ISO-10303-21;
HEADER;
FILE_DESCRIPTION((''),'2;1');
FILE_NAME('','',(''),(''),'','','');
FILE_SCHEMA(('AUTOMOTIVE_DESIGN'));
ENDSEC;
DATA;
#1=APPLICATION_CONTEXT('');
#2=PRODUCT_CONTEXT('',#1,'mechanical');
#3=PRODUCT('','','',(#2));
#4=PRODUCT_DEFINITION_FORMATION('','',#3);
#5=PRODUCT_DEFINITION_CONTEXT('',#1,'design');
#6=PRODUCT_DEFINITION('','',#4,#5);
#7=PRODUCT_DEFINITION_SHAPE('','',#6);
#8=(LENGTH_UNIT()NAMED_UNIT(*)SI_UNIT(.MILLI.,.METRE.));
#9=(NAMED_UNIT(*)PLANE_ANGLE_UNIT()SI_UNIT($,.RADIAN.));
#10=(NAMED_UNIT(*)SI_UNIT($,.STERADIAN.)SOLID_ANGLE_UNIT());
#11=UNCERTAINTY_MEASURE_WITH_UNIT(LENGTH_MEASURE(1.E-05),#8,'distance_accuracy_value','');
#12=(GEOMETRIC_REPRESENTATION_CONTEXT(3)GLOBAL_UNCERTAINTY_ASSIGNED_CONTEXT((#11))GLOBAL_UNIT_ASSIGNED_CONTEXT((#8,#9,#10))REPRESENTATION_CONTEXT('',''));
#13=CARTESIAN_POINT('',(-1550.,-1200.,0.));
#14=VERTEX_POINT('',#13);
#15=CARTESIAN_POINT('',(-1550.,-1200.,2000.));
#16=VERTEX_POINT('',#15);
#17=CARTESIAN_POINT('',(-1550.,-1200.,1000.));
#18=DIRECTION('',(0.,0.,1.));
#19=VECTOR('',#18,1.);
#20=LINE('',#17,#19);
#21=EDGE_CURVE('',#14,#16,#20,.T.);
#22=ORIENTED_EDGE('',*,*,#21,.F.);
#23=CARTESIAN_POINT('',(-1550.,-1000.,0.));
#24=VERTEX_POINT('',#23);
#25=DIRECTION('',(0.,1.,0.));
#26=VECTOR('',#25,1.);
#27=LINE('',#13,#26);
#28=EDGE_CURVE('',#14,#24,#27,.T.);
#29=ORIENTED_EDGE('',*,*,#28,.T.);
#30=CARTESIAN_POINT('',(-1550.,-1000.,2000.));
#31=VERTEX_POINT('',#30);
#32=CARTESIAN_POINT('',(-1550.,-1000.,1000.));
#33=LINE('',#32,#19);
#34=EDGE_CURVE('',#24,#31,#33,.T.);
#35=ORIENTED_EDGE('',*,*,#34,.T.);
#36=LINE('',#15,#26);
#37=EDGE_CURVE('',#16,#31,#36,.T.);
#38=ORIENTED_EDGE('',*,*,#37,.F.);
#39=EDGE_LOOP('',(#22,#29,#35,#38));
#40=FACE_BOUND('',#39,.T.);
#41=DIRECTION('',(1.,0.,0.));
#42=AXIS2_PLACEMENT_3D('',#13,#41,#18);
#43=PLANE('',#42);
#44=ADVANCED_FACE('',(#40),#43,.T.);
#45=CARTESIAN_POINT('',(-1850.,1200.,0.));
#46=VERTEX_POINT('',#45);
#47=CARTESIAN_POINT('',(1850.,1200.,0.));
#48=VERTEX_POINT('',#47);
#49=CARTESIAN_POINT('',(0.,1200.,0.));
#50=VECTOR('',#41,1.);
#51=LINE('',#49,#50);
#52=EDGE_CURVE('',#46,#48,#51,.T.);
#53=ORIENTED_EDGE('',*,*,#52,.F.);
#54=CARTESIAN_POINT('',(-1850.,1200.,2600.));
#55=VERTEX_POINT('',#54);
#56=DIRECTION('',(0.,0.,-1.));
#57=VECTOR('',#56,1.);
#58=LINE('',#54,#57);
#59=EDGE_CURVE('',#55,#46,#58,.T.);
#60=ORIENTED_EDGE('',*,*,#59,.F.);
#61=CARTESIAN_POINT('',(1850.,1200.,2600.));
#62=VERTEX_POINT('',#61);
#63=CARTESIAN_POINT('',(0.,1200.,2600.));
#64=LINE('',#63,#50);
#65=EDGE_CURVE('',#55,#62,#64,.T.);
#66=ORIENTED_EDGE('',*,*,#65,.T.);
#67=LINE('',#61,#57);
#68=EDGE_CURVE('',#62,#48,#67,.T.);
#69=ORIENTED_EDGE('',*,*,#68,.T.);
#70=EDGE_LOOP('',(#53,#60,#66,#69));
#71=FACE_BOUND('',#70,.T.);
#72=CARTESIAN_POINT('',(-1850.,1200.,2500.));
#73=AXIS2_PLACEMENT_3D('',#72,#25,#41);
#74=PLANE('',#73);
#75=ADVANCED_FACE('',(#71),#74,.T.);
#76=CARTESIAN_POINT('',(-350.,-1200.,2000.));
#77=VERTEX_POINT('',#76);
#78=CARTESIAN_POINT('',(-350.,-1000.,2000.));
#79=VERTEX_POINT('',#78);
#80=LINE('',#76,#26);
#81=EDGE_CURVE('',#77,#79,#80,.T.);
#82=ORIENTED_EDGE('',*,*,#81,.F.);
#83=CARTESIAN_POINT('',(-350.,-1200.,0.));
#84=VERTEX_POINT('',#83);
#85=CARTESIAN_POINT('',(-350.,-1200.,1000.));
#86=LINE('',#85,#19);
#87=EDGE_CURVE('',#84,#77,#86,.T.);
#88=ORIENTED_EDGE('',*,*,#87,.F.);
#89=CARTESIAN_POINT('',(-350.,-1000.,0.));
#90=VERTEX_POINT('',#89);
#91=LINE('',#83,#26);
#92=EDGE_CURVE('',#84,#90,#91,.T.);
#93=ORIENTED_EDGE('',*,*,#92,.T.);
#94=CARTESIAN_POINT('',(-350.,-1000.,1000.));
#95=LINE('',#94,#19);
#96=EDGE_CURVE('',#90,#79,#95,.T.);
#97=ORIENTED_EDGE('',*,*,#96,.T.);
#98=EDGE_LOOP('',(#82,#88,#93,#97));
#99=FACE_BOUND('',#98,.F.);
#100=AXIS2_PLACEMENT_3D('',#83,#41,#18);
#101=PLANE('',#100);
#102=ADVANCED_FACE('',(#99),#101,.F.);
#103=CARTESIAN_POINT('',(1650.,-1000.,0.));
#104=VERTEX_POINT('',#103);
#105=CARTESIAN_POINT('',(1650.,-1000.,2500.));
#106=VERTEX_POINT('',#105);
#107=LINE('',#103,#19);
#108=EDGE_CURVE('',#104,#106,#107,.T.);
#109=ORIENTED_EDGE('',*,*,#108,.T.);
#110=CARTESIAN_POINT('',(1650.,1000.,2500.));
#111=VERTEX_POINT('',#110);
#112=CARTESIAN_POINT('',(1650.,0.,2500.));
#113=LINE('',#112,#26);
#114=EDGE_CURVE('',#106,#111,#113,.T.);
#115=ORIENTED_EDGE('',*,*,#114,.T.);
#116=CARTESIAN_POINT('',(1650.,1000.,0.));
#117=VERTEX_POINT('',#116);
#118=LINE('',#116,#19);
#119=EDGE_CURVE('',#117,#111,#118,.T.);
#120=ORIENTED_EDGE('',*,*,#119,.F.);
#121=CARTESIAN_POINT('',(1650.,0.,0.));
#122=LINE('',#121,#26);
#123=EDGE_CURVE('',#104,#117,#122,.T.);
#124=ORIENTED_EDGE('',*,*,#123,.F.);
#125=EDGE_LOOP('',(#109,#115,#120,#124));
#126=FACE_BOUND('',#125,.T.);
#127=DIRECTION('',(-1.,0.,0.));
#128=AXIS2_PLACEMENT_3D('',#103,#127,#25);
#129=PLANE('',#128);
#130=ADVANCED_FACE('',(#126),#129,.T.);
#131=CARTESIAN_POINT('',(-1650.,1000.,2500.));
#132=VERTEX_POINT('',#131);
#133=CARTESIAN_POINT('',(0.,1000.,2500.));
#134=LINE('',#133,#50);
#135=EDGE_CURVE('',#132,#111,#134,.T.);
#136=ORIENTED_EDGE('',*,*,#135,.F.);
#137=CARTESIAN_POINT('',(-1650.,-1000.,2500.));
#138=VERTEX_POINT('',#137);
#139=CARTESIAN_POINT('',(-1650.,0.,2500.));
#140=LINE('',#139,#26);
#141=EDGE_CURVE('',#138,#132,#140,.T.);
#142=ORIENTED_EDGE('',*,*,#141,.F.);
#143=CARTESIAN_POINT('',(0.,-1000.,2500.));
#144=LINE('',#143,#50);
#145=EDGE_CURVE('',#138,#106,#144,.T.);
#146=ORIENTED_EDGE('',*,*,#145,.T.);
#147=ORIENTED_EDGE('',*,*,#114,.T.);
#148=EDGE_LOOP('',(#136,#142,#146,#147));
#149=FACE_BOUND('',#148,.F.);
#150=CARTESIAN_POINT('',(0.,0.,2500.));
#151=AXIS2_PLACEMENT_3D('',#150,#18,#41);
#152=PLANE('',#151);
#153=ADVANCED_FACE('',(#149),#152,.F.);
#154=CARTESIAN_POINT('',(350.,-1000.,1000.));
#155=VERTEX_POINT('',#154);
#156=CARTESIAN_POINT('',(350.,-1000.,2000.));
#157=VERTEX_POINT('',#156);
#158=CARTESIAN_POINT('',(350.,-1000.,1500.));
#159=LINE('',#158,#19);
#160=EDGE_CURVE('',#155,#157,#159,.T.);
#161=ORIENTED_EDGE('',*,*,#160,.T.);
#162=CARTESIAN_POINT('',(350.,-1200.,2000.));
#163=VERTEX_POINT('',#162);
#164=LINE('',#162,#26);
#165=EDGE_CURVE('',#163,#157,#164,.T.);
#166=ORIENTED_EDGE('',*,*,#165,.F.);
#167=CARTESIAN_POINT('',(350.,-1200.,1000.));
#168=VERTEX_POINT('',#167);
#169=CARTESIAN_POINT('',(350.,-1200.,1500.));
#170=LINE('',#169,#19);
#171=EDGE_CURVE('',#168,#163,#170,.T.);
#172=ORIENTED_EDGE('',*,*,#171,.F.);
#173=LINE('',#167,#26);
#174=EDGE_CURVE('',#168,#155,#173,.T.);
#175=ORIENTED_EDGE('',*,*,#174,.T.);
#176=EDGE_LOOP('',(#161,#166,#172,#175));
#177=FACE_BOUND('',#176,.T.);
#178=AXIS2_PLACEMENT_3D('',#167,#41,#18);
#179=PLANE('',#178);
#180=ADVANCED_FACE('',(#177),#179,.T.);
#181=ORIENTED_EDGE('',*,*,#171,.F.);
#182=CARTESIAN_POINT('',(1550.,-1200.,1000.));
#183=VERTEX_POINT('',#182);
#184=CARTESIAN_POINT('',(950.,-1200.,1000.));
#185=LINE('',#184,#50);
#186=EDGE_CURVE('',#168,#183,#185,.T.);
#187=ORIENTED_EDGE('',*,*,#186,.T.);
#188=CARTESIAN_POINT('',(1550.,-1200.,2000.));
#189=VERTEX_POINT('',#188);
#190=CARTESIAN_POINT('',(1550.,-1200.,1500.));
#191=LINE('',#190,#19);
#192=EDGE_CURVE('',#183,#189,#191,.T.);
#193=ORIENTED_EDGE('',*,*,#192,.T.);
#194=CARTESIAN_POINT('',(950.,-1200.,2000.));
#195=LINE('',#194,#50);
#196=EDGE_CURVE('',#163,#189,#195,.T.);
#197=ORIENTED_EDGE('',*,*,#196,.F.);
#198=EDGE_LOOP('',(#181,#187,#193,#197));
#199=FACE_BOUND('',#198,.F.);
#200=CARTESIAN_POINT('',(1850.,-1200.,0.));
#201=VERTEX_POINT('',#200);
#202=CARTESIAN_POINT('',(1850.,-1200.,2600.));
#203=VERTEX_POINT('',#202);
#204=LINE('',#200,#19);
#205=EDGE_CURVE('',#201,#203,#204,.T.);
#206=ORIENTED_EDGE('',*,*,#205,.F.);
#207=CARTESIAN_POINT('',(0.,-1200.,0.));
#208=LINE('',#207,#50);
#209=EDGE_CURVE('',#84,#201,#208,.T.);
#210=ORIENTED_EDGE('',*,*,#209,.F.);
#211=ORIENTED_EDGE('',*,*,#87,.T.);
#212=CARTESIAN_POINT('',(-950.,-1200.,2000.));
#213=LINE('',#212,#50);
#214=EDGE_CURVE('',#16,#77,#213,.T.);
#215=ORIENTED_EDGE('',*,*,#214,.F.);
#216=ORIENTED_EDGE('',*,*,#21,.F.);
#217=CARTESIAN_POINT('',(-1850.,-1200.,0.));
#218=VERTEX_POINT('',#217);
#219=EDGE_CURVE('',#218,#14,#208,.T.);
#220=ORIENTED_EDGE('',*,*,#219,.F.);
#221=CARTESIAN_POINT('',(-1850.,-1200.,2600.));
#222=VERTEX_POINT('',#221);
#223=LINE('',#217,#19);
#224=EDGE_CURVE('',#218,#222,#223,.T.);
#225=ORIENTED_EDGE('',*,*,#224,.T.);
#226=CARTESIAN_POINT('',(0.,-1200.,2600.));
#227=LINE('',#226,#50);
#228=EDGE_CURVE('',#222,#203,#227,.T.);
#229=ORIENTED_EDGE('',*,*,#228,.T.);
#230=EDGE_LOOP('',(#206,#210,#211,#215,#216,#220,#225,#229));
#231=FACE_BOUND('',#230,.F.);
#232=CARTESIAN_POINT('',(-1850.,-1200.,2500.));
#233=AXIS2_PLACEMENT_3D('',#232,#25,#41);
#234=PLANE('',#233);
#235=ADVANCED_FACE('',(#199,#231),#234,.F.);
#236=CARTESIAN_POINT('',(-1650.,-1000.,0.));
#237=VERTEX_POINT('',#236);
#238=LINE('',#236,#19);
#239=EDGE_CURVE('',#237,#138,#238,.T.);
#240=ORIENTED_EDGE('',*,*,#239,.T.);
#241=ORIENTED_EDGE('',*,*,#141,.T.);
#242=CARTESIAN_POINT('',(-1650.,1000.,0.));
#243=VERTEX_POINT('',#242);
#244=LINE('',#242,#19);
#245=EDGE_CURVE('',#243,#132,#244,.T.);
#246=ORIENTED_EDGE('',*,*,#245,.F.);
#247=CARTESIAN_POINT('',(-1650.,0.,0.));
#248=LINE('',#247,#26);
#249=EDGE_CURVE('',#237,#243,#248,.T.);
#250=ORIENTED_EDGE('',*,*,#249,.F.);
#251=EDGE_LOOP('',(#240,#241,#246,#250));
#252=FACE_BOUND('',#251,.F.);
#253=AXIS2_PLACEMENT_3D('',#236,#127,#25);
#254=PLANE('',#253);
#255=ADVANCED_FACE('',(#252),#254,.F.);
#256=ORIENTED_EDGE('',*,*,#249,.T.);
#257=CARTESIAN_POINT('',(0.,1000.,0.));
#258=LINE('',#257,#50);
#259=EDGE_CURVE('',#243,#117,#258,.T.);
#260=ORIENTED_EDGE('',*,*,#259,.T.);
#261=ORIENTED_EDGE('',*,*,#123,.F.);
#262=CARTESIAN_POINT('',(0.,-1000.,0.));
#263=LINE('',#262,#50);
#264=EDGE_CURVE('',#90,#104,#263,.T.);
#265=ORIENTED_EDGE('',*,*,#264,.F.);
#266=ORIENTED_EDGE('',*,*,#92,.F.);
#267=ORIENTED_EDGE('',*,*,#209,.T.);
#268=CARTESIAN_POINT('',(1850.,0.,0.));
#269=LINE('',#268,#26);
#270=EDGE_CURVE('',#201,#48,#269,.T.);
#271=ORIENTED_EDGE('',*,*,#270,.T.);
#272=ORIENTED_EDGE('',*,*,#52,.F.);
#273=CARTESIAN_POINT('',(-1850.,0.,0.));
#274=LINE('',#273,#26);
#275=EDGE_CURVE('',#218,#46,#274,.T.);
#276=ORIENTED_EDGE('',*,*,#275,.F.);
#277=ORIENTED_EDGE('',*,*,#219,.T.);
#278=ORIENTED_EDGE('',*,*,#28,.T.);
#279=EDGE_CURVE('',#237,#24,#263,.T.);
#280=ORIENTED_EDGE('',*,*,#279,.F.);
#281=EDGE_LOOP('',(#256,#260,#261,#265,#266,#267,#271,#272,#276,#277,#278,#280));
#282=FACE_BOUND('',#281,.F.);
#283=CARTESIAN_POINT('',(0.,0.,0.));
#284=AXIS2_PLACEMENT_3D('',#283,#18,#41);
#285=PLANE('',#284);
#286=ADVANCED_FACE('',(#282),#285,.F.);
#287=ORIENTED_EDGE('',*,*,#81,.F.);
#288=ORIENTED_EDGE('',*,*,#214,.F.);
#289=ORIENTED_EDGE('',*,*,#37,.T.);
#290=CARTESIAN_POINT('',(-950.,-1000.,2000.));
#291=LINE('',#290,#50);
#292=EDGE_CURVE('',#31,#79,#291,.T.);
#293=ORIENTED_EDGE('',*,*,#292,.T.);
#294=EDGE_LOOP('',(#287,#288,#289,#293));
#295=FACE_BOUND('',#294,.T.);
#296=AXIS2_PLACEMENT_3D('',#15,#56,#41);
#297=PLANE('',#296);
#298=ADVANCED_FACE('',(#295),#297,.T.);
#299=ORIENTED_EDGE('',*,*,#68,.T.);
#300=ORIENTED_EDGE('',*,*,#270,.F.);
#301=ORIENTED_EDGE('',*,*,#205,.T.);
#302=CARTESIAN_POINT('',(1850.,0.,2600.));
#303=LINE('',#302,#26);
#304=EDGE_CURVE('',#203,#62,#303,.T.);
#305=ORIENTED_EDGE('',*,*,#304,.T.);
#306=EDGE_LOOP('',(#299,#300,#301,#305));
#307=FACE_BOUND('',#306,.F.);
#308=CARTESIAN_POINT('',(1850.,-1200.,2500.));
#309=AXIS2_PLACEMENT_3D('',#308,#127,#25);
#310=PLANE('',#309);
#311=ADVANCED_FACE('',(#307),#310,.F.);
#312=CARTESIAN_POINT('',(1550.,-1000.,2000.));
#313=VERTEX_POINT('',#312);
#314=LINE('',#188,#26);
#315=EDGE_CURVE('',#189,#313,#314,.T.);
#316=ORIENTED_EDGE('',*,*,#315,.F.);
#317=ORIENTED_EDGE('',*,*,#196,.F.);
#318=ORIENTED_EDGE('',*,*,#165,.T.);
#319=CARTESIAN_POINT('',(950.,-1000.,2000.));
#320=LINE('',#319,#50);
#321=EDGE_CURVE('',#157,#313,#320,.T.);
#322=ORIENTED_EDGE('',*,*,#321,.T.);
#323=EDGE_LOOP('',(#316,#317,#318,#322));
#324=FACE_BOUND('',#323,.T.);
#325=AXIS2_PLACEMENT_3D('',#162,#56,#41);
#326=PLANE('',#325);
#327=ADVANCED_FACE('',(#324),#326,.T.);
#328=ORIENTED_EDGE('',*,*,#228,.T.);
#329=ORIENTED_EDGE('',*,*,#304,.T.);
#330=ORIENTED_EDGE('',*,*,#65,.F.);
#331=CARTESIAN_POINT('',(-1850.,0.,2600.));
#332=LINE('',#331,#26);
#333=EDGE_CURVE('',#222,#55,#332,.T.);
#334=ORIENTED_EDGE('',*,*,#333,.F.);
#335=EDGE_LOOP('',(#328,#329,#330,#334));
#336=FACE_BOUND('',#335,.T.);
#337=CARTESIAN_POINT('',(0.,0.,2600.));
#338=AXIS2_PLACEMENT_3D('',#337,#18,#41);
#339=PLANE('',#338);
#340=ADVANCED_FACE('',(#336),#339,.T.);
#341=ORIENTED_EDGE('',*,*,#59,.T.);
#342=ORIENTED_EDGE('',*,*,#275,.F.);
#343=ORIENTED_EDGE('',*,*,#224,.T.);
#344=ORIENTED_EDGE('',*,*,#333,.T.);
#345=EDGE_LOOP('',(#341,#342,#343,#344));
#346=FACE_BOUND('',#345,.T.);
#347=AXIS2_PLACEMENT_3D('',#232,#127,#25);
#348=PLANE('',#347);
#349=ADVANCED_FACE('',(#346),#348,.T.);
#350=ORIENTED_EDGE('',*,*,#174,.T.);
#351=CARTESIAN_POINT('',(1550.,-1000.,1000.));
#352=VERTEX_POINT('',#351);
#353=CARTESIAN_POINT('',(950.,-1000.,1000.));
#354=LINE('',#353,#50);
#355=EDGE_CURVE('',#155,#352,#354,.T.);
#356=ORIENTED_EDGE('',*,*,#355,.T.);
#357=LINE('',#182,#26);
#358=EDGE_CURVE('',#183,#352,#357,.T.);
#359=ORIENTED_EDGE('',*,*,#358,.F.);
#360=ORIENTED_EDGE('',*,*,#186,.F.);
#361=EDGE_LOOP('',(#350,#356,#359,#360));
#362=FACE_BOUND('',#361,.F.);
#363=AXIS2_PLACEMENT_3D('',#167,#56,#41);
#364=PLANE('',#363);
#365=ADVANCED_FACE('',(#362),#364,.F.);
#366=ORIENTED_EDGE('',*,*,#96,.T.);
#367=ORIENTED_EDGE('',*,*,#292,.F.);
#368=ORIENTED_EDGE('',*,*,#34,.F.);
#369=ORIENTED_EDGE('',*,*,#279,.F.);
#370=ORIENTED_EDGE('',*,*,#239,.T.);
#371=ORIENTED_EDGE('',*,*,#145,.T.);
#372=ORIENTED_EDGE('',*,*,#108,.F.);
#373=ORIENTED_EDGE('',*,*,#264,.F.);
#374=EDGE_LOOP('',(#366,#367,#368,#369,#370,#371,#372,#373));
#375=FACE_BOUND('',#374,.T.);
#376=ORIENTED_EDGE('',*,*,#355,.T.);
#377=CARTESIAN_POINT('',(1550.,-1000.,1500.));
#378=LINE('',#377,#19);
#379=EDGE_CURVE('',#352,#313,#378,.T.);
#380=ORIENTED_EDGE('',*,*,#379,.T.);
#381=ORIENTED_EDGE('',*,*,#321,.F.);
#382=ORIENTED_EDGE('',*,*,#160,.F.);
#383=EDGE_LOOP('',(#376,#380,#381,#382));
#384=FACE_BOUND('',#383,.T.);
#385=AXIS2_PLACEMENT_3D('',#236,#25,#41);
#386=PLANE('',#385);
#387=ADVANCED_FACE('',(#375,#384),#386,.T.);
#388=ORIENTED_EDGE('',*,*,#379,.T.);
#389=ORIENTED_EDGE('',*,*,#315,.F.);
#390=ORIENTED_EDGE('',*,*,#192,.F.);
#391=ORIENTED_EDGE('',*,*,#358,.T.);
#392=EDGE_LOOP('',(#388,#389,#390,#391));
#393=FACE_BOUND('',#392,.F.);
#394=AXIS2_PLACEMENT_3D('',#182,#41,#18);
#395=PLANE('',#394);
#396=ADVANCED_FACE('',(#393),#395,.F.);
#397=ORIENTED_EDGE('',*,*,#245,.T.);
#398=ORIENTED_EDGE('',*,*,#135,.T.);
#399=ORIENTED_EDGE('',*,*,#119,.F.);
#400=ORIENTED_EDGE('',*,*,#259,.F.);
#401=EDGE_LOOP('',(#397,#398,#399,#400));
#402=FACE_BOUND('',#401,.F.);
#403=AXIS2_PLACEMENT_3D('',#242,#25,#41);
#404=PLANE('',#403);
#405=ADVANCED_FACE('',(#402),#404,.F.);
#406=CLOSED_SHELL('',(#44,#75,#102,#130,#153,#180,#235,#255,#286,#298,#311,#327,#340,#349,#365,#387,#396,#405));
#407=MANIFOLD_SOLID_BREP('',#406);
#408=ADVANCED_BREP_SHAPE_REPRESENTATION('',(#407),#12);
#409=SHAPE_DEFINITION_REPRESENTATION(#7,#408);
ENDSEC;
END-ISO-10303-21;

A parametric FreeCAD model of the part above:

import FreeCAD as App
import Part
import Sketcher

V = App.Vector
Q = App.Units.Quantity


def add_polygon(sketch, points):
    """Adds a closed chain of lines whose ends are joined by coincident constraints."""
    first, n = sketch.GeometryCount, len(points)
    for a, b in zip(points, points[1:] + points[:1]):
        sketch.addGeometry(Part.LineSegment(App.Vector(*a, 0), App.Vector(*b, 0)), False)
    for i in range(n):
        sketch.addConstraint(Sketcher.Constraint("Coincident", first + i, 2, first + (i + 1) % n, 1))

doc = App.newDocument("Part")
body = doc.addObject("PartDesign::Body", "Body")

sketch1 = body.newObject("Sketcher::SketchObject", "Sketch")
sketch1.AttachmentSupport = (doc.getObject("XY_Plane"), [""])
sketch1.MapMode = "FlatFace"
add_polygon(sketch1, [(-1850, 1200), (-1850, -1200), (1850, -1200), (1850, 1200)])
add_polygon(sketch1, [(1650, -1000), (-1650, -1000), (-1650, 1000), (1650, 1000)])
sketch1.addConstraint(Sketcher.Constraint("Vertical", 0))
sketch1.addConstraint(Sketcher.Constraint("Horizontal", 1))
sketch1.addConstraint(Sketcher.Constraint("Vertical", 2))
sketch1.addConstraint(Sketcher.Constraint("Horizontal", 3))
sketch1.addConstraint(Sketcher.Constraint("Horizontal", 4))
sketch1.addConstraint(Sketcher.Constraint("Vertical", 5))
sketch1.addConstraint(Sketcher.Constraint("Horizontal", 6))
sketch1.addConstraint(Sketcher.Constraint("Vertical", 7))
sketch1.addConstraint(Sketcher.Constraint("Symmetric", 0, 2, 2, 2, -1, 1))
sketch1.addConstraint(Sketcher.Constraint("Symmetric", 4, 2, 6, 2, -1, 1))
sketch1.addConstraint(Sketcher.Constraint("DistanceX", 1, 1, 1, 2, Q("3700 mm")))
sketch1.addConstraint(Sketcher.Constraint("DistanceX", 4, 2, 4, 1, Q("3300 mm")))
sketch1.addConstraint(Sketcher.Constraint("DistanceY", 0, 2, 0, 1, Q("2400 mm")))
sketch1.addConstraint(Sketcher.Constraint("DistanceY", 5, 1, 5, 2, Q("2000 mm")))
pad1 = body.newObject("PartDesign::Pad", "Pad")
pad1.Profile = sketch1
pad1.Length = 2500

sketch2 = body.newObject("Sketcher::SketchObject", "Sketch001")
sketch2.AttachmentSupport = (doc.getObject("XY_Plane"), [""])
sketch2.MapMode = "FlatFace"
sketch2.AttachmentOffset = App.Placement(V(0, 0, 2500), App.Rotation())
add_polygon(sketch2, [(-1850, 1200), (-1850, -1200), (1850, -1200), (1850, 1200)])
sketch2.addConstraint(Sketcher.Constraint("Vertical", 0))
sketch2.addConstraint(Sketcher.Constraint("Horizontal", 1))
sketch2.addConstraint(Sketcher.Constraint("Vertical", 2))
sketch2.addConstraint(Sketcher.Constraint("Horizontal", 3))
sketch2.addConstraint(Sketcher.Constraint("Symmetric", 0, 2, 2, 2, -1, 1))
sketch2.addConstraint(Sketcher.Constraint("DistanceX", 1, 1, 1, 2, Q("3700 mm")))
sketch2.addConstraint(Sketcher.Constraint("DistanceY", 0, 2, 0, 1, Q("2400 mm")))
pad2 = body.newObject("PartDesign::Pad", "Pad001")
pad2.Profile = sketch2
pad2.Length = 100

sketch3 = body.newObject("Sketcher::SketchObject", "Sketch002")
sketch3.AttachmentSupport = (doc.getObject("XZ_Plane"), [""])
sketch3.MapMode = "FlatFace"
sketch3.AttachmentOffset = App.Placement(V(0, 0, 1200), App.Rotation())
add_polygon(sketch3, [(-1550, 2000), (-1550, 0), (-350, 0), (-350, 2000)])
add_polygon(sketch3, [(350, 2000), (350, 1000), (1550, 1000), (1550, 2000)])
sketch3.addConstraint(Sketcher.Constraint("Vertical", 0))
sketch3.addConstraint(Sketcher.Constraint("Horizontal", 1))
sketch3.addConstraint(Sketcher.Constraint("Vertical", 2))
sketch3.addConstraint(Sketcher.Constraint("Horizontal", 3))
sketch3.addConstraint(Sketcher.Constraint("Vertical", 4))
sketch3.addConstraint(Sketcher.Constraint("Horizontal", 5))
sketch3.addConstraint(Sketcher.Constraint("Vertical", 6))
sketch3.addConstraint(Sketcher.Constraint("Horizontal", 7))
sketch3.addConstraint(Sketcher.Constraint("Symmetric", 3, 2, 6, 2, -2))
sketch3.addConstraint(Sketcher.Constraint("PointOnObject", 0, 2, -1))
sketch3.addConstraint(Sketcher.Constraint("Equal", 3, 5))
sketch3.addConstraint(Sketcher.Constraint("DistanceX", 1, 1, 1, 2, Q("1200 mm")))
sketch3.addConstraint(Sketcher.Constraint("DistanceY", 0, 2, 0, 1, Q("2000 mm")))
sketch3.addConstraint(Sketcher.Constraint("DistanceY", 4, 2, 4, 1, Q("1000 mm")))
sketch3.addConstraint(Sketcher.Constraint("DistanceX", 0, 2, -1, 1, Q("1550 mm")))
pocket1 = body.newObject("PartDesign::Pocket", "Pocket")
pocket1.Profile = sketch3
pocket1.Length = 200

doc.recompute()
